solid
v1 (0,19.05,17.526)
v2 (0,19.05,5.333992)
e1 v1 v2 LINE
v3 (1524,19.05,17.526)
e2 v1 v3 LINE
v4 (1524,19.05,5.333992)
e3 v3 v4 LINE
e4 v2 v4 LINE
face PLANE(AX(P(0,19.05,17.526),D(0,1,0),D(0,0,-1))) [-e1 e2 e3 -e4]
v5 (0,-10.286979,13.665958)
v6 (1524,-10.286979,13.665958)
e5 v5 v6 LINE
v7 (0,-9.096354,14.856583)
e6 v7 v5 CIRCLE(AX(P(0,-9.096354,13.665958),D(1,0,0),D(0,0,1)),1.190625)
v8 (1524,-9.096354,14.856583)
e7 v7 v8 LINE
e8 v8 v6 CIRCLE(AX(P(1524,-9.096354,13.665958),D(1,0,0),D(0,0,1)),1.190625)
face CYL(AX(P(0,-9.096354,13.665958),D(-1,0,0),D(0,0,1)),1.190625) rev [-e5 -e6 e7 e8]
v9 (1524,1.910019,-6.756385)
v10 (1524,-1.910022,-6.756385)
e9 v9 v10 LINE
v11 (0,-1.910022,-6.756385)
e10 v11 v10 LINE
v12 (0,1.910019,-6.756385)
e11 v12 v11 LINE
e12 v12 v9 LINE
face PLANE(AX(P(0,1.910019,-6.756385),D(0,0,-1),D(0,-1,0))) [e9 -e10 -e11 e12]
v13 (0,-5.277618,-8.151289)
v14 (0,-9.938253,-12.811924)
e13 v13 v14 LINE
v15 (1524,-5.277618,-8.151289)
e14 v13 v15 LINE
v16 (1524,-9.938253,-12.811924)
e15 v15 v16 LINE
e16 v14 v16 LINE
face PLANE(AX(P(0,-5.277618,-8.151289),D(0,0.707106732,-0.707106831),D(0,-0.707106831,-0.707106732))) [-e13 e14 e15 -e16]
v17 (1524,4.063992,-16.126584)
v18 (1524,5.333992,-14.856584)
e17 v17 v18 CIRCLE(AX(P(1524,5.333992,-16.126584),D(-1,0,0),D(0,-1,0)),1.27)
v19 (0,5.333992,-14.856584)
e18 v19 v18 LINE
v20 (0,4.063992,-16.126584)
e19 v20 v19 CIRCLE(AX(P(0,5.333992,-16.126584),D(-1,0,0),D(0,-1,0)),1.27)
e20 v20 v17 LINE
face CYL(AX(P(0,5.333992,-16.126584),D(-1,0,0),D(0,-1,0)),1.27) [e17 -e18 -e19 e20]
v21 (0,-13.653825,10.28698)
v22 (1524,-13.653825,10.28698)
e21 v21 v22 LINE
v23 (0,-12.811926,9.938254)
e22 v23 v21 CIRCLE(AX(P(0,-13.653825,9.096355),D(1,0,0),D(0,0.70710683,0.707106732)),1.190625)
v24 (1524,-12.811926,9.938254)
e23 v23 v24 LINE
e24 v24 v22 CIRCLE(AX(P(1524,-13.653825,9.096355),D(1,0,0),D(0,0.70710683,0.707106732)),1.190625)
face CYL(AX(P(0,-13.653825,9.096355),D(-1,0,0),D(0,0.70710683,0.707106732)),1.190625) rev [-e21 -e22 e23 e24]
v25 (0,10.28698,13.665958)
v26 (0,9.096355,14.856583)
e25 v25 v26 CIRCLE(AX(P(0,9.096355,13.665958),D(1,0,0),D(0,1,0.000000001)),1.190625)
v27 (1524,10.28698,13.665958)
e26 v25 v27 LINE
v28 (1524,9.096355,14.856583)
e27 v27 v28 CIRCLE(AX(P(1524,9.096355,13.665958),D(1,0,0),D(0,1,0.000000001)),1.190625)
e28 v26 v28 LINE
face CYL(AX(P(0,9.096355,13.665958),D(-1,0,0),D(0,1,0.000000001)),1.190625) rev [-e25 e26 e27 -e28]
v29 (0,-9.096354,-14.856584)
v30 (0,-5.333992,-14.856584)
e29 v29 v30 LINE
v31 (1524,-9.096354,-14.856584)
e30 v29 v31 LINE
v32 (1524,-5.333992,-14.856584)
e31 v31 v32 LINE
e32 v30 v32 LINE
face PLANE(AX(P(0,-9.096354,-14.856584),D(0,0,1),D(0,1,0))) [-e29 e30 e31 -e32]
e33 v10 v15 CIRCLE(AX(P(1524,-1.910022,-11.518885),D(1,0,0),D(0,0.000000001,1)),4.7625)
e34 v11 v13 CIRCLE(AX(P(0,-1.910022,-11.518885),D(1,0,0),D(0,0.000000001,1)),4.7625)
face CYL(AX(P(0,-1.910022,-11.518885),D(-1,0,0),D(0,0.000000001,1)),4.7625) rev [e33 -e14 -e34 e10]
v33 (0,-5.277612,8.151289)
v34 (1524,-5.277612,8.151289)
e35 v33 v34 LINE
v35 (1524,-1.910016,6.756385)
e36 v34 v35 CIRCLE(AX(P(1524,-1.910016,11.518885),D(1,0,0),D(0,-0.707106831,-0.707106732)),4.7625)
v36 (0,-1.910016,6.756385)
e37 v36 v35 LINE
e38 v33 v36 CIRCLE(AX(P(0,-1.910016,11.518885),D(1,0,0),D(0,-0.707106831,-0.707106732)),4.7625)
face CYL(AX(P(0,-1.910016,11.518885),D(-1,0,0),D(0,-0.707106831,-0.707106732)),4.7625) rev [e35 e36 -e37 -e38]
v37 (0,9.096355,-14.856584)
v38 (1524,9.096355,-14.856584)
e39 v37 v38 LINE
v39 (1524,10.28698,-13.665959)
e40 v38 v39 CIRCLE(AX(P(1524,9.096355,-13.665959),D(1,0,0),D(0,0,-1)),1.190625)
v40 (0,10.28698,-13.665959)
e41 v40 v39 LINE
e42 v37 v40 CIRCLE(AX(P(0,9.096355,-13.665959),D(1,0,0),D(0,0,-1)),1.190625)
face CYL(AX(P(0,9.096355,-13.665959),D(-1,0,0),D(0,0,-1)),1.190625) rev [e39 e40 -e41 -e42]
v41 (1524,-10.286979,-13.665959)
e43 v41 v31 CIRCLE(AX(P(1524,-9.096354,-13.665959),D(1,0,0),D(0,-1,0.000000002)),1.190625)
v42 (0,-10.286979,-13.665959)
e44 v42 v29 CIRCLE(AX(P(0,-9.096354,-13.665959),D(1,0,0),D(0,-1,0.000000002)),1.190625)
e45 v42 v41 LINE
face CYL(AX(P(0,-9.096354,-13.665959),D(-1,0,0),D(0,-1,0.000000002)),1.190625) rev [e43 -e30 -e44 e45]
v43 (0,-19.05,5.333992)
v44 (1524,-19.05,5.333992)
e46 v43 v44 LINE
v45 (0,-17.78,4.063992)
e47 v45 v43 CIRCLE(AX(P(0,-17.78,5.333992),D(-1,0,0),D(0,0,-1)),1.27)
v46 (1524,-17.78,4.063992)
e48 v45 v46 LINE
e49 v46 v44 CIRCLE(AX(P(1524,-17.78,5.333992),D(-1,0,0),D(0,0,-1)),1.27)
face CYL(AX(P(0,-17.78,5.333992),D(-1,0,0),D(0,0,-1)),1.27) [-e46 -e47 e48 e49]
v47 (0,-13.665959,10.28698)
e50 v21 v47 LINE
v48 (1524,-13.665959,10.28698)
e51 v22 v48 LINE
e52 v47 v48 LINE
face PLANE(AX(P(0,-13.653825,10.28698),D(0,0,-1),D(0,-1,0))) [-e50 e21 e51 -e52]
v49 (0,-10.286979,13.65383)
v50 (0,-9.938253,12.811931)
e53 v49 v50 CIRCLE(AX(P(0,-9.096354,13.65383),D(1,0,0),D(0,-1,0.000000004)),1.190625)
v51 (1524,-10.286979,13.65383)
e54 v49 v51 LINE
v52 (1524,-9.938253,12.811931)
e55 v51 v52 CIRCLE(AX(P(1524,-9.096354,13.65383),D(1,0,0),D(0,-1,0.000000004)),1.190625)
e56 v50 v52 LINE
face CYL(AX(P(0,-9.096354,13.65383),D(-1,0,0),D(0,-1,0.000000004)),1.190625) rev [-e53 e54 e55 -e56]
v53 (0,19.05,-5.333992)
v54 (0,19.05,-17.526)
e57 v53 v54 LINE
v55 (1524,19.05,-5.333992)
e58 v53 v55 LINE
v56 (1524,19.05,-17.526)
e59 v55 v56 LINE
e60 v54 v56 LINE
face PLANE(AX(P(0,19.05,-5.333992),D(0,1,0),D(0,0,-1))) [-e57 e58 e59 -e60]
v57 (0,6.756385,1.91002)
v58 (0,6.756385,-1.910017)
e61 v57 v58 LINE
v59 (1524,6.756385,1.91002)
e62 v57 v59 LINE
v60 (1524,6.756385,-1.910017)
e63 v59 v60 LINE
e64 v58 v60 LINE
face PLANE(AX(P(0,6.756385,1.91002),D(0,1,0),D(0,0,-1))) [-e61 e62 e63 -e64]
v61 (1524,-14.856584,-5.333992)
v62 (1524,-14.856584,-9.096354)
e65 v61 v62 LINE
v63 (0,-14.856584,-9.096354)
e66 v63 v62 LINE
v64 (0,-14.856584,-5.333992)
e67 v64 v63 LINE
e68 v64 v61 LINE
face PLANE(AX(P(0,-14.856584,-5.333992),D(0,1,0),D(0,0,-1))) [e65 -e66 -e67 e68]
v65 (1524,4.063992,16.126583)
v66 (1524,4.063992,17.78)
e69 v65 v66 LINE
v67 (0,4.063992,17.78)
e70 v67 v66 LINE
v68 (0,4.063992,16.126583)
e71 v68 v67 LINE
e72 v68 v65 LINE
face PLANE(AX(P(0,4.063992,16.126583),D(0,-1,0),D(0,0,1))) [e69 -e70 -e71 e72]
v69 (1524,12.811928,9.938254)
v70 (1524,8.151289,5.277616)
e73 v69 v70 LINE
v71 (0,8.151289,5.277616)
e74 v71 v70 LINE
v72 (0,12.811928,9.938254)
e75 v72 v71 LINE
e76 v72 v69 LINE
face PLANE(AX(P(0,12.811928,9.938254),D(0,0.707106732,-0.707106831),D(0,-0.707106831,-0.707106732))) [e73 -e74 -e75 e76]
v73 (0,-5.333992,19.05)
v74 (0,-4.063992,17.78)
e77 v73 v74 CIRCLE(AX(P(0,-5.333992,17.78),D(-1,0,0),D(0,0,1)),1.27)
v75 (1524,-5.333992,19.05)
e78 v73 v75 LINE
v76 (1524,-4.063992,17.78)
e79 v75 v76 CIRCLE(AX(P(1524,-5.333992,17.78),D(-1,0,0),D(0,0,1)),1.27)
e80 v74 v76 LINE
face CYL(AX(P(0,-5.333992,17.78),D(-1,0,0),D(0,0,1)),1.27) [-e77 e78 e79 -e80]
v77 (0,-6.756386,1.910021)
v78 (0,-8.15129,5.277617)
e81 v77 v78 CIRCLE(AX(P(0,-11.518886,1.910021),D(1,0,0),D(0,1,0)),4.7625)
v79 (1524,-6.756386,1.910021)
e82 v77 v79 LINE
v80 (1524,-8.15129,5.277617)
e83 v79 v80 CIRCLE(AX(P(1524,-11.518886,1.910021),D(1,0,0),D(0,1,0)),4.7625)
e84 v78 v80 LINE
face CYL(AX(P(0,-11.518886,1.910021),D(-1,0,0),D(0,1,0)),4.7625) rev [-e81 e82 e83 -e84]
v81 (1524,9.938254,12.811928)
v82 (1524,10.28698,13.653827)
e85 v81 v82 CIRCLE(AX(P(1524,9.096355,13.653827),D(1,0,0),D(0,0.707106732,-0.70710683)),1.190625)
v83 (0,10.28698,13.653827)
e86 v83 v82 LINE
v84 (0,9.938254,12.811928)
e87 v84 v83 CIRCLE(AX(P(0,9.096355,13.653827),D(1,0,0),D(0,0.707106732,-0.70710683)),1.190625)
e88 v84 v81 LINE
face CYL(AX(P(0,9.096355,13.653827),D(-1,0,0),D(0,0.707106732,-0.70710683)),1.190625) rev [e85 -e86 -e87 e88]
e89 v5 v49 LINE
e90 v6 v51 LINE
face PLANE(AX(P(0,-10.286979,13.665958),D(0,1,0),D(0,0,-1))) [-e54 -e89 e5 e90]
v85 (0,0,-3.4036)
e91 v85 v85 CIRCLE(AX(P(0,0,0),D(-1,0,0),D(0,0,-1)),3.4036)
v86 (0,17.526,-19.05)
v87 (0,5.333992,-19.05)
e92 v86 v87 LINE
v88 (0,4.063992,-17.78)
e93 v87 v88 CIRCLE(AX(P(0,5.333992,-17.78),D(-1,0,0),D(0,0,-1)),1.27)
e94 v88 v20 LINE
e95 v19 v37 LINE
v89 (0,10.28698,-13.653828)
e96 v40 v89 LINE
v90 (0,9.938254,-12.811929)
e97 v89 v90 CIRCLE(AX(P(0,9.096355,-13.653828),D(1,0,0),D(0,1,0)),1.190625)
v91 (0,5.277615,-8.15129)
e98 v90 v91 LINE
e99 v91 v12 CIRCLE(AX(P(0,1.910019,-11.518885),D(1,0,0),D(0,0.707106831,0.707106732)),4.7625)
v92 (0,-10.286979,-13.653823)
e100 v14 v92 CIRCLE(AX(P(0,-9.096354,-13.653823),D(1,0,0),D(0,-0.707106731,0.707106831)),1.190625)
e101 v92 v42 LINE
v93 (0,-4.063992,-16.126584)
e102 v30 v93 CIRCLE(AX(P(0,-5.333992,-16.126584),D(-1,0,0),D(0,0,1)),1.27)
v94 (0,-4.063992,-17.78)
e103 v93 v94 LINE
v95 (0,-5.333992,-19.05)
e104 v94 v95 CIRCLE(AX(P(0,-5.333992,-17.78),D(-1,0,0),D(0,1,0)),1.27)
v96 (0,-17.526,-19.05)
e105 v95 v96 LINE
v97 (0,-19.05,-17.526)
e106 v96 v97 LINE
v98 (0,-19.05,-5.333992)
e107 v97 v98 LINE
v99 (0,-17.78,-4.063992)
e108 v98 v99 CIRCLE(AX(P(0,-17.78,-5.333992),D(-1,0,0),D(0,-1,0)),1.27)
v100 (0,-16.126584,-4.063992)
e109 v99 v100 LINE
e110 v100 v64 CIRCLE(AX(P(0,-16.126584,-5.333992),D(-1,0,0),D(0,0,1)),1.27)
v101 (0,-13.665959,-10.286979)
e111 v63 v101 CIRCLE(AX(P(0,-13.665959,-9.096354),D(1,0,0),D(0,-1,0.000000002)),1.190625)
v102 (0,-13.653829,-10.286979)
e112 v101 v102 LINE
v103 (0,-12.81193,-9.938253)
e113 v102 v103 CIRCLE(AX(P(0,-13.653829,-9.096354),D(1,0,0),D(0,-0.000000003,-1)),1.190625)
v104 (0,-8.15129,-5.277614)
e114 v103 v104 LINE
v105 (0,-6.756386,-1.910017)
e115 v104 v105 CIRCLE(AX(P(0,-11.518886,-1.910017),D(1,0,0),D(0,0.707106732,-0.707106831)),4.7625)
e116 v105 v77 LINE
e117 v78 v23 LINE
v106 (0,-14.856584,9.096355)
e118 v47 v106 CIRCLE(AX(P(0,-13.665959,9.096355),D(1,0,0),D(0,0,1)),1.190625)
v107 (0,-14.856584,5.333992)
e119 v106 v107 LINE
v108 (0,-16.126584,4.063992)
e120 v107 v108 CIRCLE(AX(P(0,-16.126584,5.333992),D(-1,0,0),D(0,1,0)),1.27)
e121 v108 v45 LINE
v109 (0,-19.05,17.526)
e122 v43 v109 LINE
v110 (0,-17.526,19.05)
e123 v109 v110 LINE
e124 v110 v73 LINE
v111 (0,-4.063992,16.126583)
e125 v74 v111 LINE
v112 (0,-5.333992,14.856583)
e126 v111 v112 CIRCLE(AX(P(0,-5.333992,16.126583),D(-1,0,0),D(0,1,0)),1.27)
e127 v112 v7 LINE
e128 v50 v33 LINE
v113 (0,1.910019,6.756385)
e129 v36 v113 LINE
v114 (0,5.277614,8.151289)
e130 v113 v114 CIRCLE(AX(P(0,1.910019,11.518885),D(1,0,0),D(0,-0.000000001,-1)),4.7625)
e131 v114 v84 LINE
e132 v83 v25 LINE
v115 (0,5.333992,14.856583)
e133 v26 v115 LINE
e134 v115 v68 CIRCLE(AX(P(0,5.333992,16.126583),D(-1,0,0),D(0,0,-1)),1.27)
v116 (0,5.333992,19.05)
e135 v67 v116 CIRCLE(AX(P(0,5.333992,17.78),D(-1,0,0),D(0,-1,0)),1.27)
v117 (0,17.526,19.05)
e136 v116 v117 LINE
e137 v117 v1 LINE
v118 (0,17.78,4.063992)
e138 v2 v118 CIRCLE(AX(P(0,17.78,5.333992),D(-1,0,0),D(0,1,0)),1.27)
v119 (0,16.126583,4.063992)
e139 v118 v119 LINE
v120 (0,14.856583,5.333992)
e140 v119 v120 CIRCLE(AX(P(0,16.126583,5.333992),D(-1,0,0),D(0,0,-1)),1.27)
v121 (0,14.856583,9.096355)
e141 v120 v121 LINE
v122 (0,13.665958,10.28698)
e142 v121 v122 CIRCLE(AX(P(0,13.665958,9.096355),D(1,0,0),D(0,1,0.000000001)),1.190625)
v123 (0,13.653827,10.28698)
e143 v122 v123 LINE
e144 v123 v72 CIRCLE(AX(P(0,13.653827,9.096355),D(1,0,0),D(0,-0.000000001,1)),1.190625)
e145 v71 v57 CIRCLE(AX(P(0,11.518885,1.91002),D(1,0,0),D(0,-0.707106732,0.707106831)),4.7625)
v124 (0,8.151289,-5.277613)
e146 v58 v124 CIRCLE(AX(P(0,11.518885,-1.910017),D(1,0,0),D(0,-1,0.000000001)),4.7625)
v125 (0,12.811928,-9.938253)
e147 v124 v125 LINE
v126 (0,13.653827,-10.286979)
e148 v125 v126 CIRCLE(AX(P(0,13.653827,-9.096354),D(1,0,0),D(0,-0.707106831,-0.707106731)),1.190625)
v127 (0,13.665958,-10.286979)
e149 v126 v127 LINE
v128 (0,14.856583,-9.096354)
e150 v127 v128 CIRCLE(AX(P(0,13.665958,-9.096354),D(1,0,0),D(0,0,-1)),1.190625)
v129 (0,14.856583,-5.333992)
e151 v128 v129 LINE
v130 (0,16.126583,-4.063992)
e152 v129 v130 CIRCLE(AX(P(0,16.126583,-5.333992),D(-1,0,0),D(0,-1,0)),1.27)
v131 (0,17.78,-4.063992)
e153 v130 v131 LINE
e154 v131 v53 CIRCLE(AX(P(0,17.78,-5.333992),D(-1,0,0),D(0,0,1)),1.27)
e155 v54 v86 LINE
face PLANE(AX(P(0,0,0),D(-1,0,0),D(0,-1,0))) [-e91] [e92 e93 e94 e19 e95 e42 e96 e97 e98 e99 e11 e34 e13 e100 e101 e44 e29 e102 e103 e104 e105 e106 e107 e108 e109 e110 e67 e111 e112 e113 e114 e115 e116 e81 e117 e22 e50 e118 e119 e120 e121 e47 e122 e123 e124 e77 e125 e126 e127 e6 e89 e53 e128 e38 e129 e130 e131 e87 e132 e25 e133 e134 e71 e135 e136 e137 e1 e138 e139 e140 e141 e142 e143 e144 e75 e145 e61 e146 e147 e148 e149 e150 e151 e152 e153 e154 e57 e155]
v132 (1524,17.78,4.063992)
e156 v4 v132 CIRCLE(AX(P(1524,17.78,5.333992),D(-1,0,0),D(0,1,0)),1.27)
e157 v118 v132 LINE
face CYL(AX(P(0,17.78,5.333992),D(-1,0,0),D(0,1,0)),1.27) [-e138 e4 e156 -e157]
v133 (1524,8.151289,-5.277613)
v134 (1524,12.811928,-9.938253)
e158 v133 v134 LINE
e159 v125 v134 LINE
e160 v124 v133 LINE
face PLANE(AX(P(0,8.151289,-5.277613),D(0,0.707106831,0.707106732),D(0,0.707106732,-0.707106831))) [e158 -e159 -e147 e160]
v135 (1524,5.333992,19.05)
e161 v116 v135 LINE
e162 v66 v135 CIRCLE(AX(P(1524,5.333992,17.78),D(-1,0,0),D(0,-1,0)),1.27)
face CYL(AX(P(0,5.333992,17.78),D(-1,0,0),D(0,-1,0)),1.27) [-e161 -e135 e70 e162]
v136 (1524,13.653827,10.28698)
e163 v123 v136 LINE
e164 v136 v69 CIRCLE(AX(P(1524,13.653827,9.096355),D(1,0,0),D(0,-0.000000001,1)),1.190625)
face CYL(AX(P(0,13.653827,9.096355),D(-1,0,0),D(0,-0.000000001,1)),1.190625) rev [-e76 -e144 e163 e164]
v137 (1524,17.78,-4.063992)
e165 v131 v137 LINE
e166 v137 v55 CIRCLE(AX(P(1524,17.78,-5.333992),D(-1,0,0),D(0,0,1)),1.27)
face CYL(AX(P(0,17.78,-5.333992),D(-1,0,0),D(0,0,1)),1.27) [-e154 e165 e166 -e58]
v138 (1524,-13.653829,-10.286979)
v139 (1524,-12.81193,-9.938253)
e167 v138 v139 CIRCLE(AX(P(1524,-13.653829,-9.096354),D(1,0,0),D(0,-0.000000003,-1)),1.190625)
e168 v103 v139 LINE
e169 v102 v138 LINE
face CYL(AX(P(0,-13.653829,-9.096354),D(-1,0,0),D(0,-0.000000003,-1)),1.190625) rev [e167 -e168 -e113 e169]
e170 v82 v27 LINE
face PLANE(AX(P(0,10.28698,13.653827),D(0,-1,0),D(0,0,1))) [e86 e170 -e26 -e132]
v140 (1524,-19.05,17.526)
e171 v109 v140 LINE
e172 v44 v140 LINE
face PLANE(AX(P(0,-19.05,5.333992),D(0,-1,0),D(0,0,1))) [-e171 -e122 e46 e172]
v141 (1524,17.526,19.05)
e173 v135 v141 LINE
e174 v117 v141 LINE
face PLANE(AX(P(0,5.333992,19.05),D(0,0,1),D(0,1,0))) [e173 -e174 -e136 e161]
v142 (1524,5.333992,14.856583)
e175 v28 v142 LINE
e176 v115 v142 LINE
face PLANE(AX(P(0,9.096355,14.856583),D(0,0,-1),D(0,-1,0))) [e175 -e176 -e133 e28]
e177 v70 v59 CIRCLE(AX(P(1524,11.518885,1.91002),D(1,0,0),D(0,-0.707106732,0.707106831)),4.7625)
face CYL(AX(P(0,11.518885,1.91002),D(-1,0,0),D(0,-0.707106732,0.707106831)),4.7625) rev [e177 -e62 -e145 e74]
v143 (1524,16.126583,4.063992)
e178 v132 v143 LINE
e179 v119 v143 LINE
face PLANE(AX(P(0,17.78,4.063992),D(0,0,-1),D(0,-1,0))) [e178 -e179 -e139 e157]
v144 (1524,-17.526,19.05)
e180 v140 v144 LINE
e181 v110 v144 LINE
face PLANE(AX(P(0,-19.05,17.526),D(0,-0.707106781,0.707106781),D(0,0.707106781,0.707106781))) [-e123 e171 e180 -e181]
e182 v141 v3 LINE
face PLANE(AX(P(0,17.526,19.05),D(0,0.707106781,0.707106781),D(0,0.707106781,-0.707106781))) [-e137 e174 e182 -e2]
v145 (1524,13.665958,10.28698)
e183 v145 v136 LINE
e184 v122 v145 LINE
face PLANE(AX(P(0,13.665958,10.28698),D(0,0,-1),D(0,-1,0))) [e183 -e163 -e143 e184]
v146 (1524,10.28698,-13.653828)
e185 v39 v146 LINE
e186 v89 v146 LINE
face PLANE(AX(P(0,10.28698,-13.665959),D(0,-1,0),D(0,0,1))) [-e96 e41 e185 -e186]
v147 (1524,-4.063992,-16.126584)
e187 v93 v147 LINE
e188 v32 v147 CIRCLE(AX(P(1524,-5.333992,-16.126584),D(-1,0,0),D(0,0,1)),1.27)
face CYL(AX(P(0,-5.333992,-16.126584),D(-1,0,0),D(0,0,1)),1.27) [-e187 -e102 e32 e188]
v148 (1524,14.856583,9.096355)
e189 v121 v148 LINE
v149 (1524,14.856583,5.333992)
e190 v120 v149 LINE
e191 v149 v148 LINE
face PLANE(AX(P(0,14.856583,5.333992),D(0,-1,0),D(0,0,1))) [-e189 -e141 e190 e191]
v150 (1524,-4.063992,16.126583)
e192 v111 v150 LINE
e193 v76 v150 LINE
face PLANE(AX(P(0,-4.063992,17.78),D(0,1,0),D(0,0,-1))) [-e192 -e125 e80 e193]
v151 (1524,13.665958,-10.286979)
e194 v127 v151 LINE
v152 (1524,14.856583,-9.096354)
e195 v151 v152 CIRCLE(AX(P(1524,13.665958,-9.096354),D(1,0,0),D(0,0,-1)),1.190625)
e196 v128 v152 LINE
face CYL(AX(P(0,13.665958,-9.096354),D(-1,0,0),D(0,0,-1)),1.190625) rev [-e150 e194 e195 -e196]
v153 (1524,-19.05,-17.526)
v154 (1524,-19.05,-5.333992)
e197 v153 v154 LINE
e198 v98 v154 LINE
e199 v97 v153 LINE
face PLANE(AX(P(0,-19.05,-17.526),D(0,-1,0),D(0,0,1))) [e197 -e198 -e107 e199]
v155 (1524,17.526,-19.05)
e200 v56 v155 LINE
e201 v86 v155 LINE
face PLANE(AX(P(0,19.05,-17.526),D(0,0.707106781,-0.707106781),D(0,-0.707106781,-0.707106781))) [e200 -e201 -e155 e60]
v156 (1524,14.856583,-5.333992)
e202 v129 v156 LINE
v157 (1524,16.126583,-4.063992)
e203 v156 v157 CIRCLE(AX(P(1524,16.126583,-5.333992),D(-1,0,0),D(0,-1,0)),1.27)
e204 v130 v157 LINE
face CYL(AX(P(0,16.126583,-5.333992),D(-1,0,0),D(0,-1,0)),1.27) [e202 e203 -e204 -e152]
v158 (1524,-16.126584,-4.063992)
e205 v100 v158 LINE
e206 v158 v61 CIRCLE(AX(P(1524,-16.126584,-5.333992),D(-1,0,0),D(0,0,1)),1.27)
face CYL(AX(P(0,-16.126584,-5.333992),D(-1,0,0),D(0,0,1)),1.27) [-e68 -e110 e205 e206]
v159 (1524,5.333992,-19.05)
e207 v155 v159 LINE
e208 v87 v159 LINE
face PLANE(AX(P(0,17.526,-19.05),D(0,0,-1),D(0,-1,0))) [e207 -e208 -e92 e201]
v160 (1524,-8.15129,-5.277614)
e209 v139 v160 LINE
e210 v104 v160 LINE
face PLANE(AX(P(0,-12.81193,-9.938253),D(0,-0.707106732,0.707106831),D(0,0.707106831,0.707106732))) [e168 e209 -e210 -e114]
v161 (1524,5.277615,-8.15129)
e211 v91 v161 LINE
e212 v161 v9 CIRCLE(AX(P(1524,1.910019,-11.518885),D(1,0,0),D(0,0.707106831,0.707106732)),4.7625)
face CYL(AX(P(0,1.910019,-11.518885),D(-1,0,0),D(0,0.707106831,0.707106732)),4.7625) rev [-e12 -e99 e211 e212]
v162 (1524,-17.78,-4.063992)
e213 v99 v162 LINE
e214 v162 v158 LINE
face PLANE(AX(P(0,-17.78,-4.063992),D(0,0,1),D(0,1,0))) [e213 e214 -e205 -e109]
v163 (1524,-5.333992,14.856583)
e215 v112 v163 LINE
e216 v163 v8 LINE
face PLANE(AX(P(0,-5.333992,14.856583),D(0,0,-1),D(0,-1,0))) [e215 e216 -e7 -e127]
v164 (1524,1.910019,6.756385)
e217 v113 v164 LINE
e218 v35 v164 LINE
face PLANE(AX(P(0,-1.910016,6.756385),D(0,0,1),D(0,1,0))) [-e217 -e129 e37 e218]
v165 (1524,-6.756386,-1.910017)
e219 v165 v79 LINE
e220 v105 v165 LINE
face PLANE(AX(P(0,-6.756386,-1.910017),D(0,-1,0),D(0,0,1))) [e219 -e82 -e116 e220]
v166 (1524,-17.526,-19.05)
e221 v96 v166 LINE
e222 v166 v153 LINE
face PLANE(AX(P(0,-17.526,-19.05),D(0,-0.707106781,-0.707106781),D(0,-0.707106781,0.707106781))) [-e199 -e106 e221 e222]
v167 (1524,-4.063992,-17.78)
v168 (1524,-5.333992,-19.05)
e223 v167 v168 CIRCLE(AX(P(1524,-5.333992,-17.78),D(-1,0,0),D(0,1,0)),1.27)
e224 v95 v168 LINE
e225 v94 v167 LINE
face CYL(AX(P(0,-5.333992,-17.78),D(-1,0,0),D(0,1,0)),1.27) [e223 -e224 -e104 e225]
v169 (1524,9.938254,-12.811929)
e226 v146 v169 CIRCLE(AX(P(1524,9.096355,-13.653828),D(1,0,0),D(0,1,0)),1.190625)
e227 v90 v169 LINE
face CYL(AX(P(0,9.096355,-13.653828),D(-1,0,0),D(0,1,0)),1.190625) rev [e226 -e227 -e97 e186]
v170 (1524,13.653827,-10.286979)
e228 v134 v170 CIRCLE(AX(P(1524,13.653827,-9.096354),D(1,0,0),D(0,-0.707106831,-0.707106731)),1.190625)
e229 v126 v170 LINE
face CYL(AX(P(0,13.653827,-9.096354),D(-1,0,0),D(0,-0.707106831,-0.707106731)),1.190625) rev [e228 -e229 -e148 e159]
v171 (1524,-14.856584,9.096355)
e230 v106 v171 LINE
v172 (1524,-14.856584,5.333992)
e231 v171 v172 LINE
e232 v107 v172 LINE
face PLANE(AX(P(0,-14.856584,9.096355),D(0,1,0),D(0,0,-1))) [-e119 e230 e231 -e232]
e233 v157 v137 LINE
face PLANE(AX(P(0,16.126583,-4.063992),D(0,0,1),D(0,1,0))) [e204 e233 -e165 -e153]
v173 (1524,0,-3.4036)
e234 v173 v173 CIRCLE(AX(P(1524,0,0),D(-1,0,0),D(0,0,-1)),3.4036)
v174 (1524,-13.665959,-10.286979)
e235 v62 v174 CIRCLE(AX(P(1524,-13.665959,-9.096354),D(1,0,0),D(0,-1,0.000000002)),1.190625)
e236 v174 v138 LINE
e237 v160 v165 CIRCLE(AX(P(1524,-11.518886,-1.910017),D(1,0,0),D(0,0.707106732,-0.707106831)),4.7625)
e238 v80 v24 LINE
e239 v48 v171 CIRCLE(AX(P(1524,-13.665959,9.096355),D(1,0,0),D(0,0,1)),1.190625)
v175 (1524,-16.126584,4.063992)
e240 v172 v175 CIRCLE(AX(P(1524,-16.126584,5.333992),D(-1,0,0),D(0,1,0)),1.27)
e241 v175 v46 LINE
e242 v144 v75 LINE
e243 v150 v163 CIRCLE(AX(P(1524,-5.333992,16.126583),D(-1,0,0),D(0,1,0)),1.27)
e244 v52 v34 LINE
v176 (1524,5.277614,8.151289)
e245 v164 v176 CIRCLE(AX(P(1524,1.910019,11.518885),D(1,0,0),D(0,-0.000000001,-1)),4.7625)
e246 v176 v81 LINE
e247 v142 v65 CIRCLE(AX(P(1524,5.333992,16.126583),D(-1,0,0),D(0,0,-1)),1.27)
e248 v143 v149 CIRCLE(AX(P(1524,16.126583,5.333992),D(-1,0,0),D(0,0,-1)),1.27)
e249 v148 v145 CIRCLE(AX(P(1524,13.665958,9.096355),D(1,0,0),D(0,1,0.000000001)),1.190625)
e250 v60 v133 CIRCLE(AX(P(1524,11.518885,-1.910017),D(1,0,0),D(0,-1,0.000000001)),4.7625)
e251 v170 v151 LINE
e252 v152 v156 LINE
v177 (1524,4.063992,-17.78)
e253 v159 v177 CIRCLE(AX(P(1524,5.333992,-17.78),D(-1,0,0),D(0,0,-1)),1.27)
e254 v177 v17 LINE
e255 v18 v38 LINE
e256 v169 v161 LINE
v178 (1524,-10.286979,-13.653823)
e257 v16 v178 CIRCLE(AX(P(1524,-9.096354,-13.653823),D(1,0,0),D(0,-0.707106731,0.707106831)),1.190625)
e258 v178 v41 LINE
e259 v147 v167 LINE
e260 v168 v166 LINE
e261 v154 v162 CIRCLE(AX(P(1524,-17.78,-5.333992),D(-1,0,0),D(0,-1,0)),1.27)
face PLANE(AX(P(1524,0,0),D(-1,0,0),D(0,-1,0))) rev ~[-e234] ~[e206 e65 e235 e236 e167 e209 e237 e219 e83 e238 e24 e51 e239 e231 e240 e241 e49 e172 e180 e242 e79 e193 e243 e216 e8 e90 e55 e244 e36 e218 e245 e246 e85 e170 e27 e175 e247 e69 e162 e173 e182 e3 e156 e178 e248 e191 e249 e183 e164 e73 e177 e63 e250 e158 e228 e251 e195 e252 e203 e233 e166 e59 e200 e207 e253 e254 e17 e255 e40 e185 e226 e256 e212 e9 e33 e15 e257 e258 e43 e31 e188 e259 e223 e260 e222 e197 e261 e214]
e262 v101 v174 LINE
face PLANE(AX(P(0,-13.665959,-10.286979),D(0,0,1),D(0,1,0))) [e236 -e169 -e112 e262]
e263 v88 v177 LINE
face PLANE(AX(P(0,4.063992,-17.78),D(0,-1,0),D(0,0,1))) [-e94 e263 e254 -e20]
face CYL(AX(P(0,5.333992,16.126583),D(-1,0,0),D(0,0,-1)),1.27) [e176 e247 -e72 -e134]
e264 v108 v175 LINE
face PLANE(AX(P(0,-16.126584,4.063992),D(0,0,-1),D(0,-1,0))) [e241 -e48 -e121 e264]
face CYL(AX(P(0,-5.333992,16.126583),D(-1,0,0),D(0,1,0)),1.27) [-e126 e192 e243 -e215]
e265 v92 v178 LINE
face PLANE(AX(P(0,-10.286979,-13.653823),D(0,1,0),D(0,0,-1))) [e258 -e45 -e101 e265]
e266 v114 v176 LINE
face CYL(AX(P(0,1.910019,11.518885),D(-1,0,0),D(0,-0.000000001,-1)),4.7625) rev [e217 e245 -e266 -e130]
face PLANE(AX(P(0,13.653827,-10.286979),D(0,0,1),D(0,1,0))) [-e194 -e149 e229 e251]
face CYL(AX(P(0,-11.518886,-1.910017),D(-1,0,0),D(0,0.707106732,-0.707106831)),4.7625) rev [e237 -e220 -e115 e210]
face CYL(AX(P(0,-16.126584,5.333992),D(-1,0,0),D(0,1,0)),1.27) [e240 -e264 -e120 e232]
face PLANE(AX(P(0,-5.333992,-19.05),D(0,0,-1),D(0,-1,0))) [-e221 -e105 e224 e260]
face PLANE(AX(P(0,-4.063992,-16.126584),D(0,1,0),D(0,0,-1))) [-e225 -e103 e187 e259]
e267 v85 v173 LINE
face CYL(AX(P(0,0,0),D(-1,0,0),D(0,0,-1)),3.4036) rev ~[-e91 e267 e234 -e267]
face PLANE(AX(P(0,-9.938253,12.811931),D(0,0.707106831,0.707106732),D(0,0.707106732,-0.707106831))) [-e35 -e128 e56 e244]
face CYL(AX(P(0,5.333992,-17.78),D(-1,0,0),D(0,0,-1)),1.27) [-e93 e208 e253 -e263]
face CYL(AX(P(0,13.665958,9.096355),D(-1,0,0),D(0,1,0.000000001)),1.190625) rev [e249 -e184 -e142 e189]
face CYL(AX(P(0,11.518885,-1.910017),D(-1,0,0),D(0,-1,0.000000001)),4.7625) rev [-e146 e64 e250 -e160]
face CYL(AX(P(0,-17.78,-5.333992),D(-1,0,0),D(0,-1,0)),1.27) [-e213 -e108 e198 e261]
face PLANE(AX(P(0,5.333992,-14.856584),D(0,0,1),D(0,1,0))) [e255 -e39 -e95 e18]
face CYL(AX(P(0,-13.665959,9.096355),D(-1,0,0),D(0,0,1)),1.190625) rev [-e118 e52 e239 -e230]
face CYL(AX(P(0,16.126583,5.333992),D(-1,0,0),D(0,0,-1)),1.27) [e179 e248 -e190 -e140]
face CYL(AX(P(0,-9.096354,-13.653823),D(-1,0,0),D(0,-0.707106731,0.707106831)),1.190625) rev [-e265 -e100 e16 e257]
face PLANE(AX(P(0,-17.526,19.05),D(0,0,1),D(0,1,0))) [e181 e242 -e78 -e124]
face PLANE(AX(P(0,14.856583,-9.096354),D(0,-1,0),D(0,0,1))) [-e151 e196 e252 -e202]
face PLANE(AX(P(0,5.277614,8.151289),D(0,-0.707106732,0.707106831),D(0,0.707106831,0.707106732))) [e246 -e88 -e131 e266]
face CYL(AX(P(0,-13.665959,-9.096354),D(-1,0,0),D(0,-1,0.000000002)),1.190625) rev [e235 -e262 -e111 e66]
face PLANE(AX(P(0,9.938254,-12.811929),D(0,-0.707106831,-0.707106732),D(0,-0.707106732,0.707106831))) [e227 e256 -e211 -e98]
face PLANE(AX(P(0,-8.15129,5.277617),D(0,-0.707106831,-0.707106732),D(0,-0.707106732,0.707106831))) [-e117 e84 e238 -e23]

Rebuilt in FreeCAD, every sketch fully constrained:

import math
import FreeCAD as App
import Part
import Sketcher
Q = App.Units.Quantity

doc = App.newDocument("Part")
params = doc.addObject("Spreadsheet::Sheet", "Params")
for row, (alias, value) in enumerate([
    ("sketch1_radius", "0.05 in"),
    ("sketch1_diameter", "0.268 in"),
    ("sketch1_radius2", "0.046875 in"),
    ("sketch1_radius3", "0.1875 in"),
    ("pad1_length", "60 in"),
], start=1):
    params.set(f"A{row}", alias)
    params.set(f"B{row}", "=" + value)
    params.setAlias(f"B{row}", alias)

body = doc.addObject("PartDesign::Body", "Body")

sketch1 = body.newObject("Sketcher::SketchObject", "Sketch")
sketch1.AttachmentSupport = (doc.getObject("YZ_Plane"), [""])
sketch1.MapMode = "FlatFace"
sketch1.addGeometry(Part.LineSegment(App.Vector(-19.05, 5.333992, 0), App.Vector(-19.05, 17.526, 0)), False)
sketch1.addGeometry(Part.LineSegment(App.Vector(-19.05, 17.526, 0), App.Vector(-17.526, 19.05, 0)), False)
sketch1.addGeometry(Part.LineSegment(App.Vector(-17.526, 19.05, 0), App.Vector(-5.333992, 19.05, 0)), False)
sketch1.addGeometry(Part.ArcOfCircle(Part.Circle(App.Vector(-5.333992, 17.78, 0), App.Vector(0, 0, 1), 1.27), math.radians(0), math.radians(90)), False)
sketch1.addGeometry(Part.LineSegment(App.Vector(-4.063992, 17.78, 0), App.Vector(-4.063992, 16.126583, 0)), False)
sketch1.addGeometry(Part.ArcOfCircle(Part.Circle(App.Vector(-5.333992, 16.126583, 0), App.Vector(0, 0, 1), 1.27), math.radians(-90), math.radians(0)), False)
sketch1.addGeometry(Part.LineSegment(App.Vector(-5.333992, 14.856583, 0), App.Vector(-9.096354, 14.856583, 0)), False)
sketch1.addGeometry(Part.ArcOfCircle(Part.Circle(App.Vector(-9.096354, 13.665958, 0), App.Vector(0, 0, 1), 1.190625), math.radians(90), math.radians(180)), False)
sketch1.addGeometry(Part.LineSegment(App.Vector(-10.286979, 13.665958, 0), App.Vector(-10.286979, 13.65383, 0)), False)
sketch1.addGeometry(Part.ArcOfCircle(Part.Circle(App.Vector(-9.096354, 13.65383, 0), App.Vector(0, 0, 1), 1.190625), math.radians(180), math.radians(224.999996)), False)
sketch1.addGeometry(Part.LineSegment(App.Vector(-9.938253, 12.811931, 0), App.Vector(-5.277612, 8.151289, 0)), False)
sketch1.addGeometry(Part.ArcOfCircle(Part.Circle(App.Vector(-1.910016, 11.518885, 0), App.Vector(0, 0, 1), 4.7625), math.radians(-135.000004), math.radians(-90)), False)
sketch1.addGeometry(Part.LineSegment(App.Vector(-1.910016, 6.756385, 0), App.Vector(1.910019, 6.756385, 0)), False)
sketch1.addGeometry(Part.ArcOfCircle(Part.Circle(App.Vector(1.910019, 11.518885, 0), App.Vector(0, 0, 1), 4.7625), math.radians(-90), math.radians(-45.000004)), False)
sketch1.addGeometry(Part.LineSegment(App.Vector(5.277614, 8.151289, 0), App.Vector(9.938254, 12.811928, 0)), False)
sketch1.addGeometry(Part.ArcOfCircle(Part.Circle(App.Vector(9.096355, 13.653827, 0), App.Vector(0, 0, 1), 1.190625), math.radians(-45.000004), math.radians(0)), False)
sketch1.addGeometry(Part.LineSegment(App.Vector(10.28698, 13.653827, 0), App.Vector(10.28698, 13.665958, 0)), False)
sketch1.addGeometry(Part.ArcOfCircle(Part.Circle(App.Vector(9.096355, 13.665958, 0), App.Vector(0, 0, 1), 1.190625), math.radians(0), math.radians(90)), False)
sketch1.addGeometry(Part.LineSegment(App.Vector(9.096355, 14.856583, 0), App.Vector(5.333992, 14.856583, 0)), False)
sketch1.addGeometry(Part.ArcOfCircle(Part.Circle(App.Vector(5.333992, 16.126583, 0), App.Vector(0, 0, 1), 1.27), math.radians(180), math.radians(270)), False)
sketch1.addGeometry(Part.LineSegment(App.Vector(4.063992, 16.126583, 0), App.Vector(4.063992, 17.78, 0)), False)
sketch1.addGeometry(Part.ArcOfCircle(Part.Circle(App.Vector(5.333992, 17.78, 0), App.Vector(0, 0, 1), 1.27), math.radians(90), math.radians(180)), False)
sketch1.addGeometry(Part.LineSegment(App.Vector(5.333992, 19.05, 0), App.Vector(17.526, 19.05, 0)), False)
sketch1.addGeometry(Part.LineSegment(App.Vector(17.526, 19.05, 0), App.Vector(19.05, 17.526, 0)), False)
sketch1.addGeometry(Part.LineSegment(App.Vector(19.05, 17.526, 0), App.Vector(19.05, 5.333992, 0)), False)
sketch1.addGeometry(Part.ArcOfCircle(Part.Circle(App.Vector(17.78, 5.333992, 0), App.Vector(0, 0, 1), 1.27), math.radians(-90), math.radians(0)), False)
sketch1.addGeometry(Part.LineSegment(App.Vector(17.78, 4.063992, 0), App.Vector(16.126583, 4.063992, 0)), False)
sketch1.addGeometry(Part.ArcOfCircle(Part.Circle(App.Vector(16.126583, 5.333992, 0), App.Vector(0, 0, 1), 1.27), math.radians(180), math.radians(270)), False)
sketch1.addGeometry(Part.LineSegment(App.Vector(14.856583, 5.333992, 0), App.Vector(14.856583, 9.096355, 0)), False)
sketch1.addGeometry(Part.ArcOfCircle(Part.Circle(App.Vector(13.665958, 9.096355, 0), App.Vector(0, 0, 1), 1.190625), math.radians(0), math.radians(90)), False)
sketch1.addGeometry(Part.LineSegment(App.Vector(13.665958, 10.28698, 0), App.Vector(13.653827, 10.28698, 0)), False)
sketch1.addGeometry(Part.ArcOfCircle(Part.Circle(App.Vector(13.653827, 9.096355, 0), App.Vector(0, 0, 1), 1.190625), math.radians(90), math.radians(134.999996)), False)
sketch1.addGeometry(Part.LineSegment(App.Vector(12.811928, 9.938254, 0), App.Vector(8.151289, 5.277616, 0)), False)
sketch1.addGeometry(Part.ArcOfCircle(Part.Circle(App.Vector(11.518885, 1.91002, 0), App.Vector(0, 0, 1), 4.7625), math.radians(134.999996), math.radians(180)), False)
sketch1.addGeometry(Part.LineSegment(App.Vector(6.756385, 1.91002, 0), App.Vector(6.756385, -1.910017, 0)), False)
sketch1.addGeometry(Part.ArcOfCircle(Part.Circle(App.Vector(11.518885, -1.910017, 0), App.Vector(0, 0, 1), 4.7625), math.radians(180), math.radians(224.999996)), False)
sketch1.addGeometry(Part.LineSegment(App.Vector(8.151289, -5.277613, 0), App.Vector(12.811928, -9.938253, 0)), False)
sketch1.addGeometry(Part.ArcOfCircle(Part.Circle(App.Vector(13.653827, -9.096354, 0), App.Vector(0, 0, 1), 1.190625), math.radians(-135.000004), math.radians(-90)), False)
sketch1.addGeometry(Part.LineSegment(App.Vector(13.653827, -10.286979, 0), App.Vector(13.665958, -10.286979, 0)), False)
sketch1.addGeometry(Part.ArcOfCircle(Part.Circle(App.Vector(13.665958, -9.096354, 0), App.Vector(0, 0, 1), 1.190625), math.radians(-90), math.radians(0)), False)
sketch1.addGeometry(Part.LineSegment(App.Vector(14.856583, -9.096354, 0), App.Vector(14.856583, -5.333992, 0)), False)
sketch1.addGeometry(Part.ArcOfCircle(Part.Circle(App.Vector(16.126583, -5.333992, 0), App.Vector(0, 0, 1), 1.27), math.radians(90), math.radians(180)), False)
sketch1.addGeometry(Part.LineSegment(App.Vector(16.126583, -4.063992, 0), App.Vector(17.78, -4.063992, 0)), False)
sketch1.addGeometry(Part.ArcOfCircle(Part.Circle(App.Vector(17.78, -5.333992, 0), App.Vector(0, 0, 1), 1.27), math.radians(0), math.radians(90)), False)
sketch1.addGeometry(Part.LineSegment(App.Vector(19.05, -5.333992, 0), App.Vector(19.05, -17.526, 0)), False)
sketch1.addGeometry(Part.LineSegment(App.Vector(19.05, -17.526, 0), App.Vector(17.526, -19.05, 0)), False)
sketch1.addGeometry(Part.LineSegment(App.Vector(17.526, -19.05, 0), App.Vector(5.333992, -19.05, 0)), False)
sketch1.addGeometry(Part.ArcOfCircle(Part.Circle(App.Vector(5.333992, -17.78, 0), App.Vector(0, 0, 1), 1.27), math.radians(180), math.radians(270)), False)
sketch1.addGeometry(Part.LineSegment(App.Vector(4.063992, -17.78, 0), App.Vector(4.063992, -16.126584, 0)), False)
sketch1.addGeometry(Part.ArcOfCircle(Part.Circle(App.Vector(5.333992, -16.126584, 0), App.Vector(0, 0, 1), 1.27), math.radians(90), math.radians(180)), False)
sketch1.addGeometry(Part.LineSegment(App.Vector(5.333992, -14.856584, 0), App.Vector(9.096355, -14.856584, 0)), False)
sketch1.addGeometry(Part.ArcOfCircle(Part.Circle(App.Vector(9.096355, -13.665959, 0), App.Vector(0, 0, 1), 1.190625), math.radians(-90), math.radians(0)), False)
sketch1.addGeometry(Part.LineSegment(App.Vector(10.28698, -13.665959, 0), App.Vector(10.28698, -13.653828, 0)), False)
sketch1.addGeometry(Part.ArcOfCircle(Part.Circle(App.Vector(9.096355, -13.653828, 0), App.Vector(0, 0, 1), 1.190625), math.radians(0), math.radians(44.999996)), False)
sketch1.addGeometry(Part.LineSegment(App.Vector(9.938254, -12.811929, 0), App.Vector(5.277615, -8.15129, 0)), False)
sketch1.addGeometry(Part.ArcOfCircle(Part.Circle(App.Vector(1.910019, -11.518885, 0), App.Vector(0, 0, 1), 4.7625), math.radians(44.999996), math.radians(90)), False)
sketch1.addGeometry(Part.LineSegment(App.Vector(1.910019, -6.756385, 0), App.Vector(-1.910022, -6.756385, 0)), False)
sketch1.addGeometry(Part.ArcOfCircle(Part.Circle(App.Vector(-1.910022, -11.518885, 0), App.Vector(0, 0, 1), 4.7625), math.radians(90), math.radians(134.999996)), False)
sketch1.addGeometry(Part.LineSegment(App.Vector(-5.277618, -8.151289, 0), App.Vector(-9.938253, -12.811924, 0)), False)
sketch1.addGeometry(Part.ArcOfCircle(Part.Circle(App.Vector(-9.096354, -13.653823, 0), App.Vector(0, 0, 1), 1.190625), math.radians(134.999996), math.radians(180)), False)
sketch1.addGeometry(Part.LineSegment(App.Vector(-10.286979, -13.653823, 0), App.Vector(-10.286979, -13.665959, 0)), False)
sketch1.addGeometry(Part.ArcOfCircle(Part.Circle(App.Vector(-9.096354, -13.665959, 0), App.Vector(0, 0, 1), 1.190625), math.radians(180), math.radians(270)), False)
sketch1.addGeometry(Part.LineSegment(App.Vector(-9.096354, -14.856584, 0), App.Vector(-5.333992, -14.856584, 0)), False)
sketch1.addGeometry(Part.ArcOfCircle(Part.Circle(App.Vector(-5.333992, -16.126584, 0), App.Vector(0, 0, 1), 1.27), math.radians(0), math.radians(90)), False)
sketch1.addGeometry(Part.LineSegment(App.Vector(-4.063992, -16.126584, 0), App.Vector(-4.063992, -17.78, 0)), False)
sketch1.addGeometry(Part.ArcOfCircle(Part.Circle(App.Vector(-5.333992, -17.78, 0), App.Vector(0, 0, 1), 1.27), math.radians(-90), math.radians(0)), False)
sketch1.addGeometry(Part.LineSegment(App.Vector(-5.333992, -19.05, 0), App.Vector(-17.526, -19.05, 0)), False)
sketch1.addGeometry(Part.LineSegment(App.Vector(-17.526, -19.05, 0), App.Vector(-19.05, -17.526, 0)), False)
sketch1.addGeometry(Part.LineSegment(App.Vector(-19.05, -17.526, 0), App.Vector(-19.05, -5.333992, 0)), False)
sketch1.addGeometry(Part.ArcOfCircle(Part.Circle(App.Vector(-17.78, -5.333992, 0), App.Vector(0, 0, 1), 1.27), math.radians(90), math.radians(180)), False)
sketch1.addGeometry(Part.LineSegment(App.Vector(-17.78, -4.063992, 0), App.Vector(-16.126584, -4.063992, 0)), False)
sketch1.addGeometry(Part.ArcOfCircle(Part.Circle(App.Vector(-16.126584, -5.333992, 0), App.Vector(0, 0, 1), 1.27), math.radians(0), math.radians(90)), False)
sketch1.addGeometry(Part.LineSegment(App.Vector(-14.856584, -5.333992, 0), App.Vector(-14.856584, -9.096354, 0)), False)
sketch1.addGeometry(Part.ArcOfCircle(Part.Circle(App.Vector(-13.665959, -9.096354, 0), App.Vector(0, 0, 1), 1.190625), math.radians(180), math.radians(270)), False)
sketch1.addGeometry(Part.LineSegment(App.Vector(-13.665959, -10.286979, 0), App.Vector(-13.653829, -10.286979, 0)), False)
sketch1.addGeometry(Part.ArcOfCircle(Part.Circle(App.Vector(-13.653829, -9.096354, 0), App.Vector(0, 0, 1), 1.190625), math.radians(-90), math.radians(-45.000004)), False)
sketch1.addGeometry(Part.LineSegment(App.Vector(-12.81193, -9.938253, 0), App.Vector(-8.15129, -5.277614, 0)), False)
sketch1.addGeometry(Part.ArcOfCircle(Part.Circle(App.Vector(-11.518886, -1.910017, 0), App.Vector(0, 0, 1), 4.7625), math.radians(-45.000004), math.radians(0)), False)
sketch1.addGeometry(Part.LineSegment(App.Vector(-6.756386, -1.910017, 0), App.Vector(-6.756386, 1.910021, 0)), False)
sketch1.addGeometry(Part.ArcOfCircle(Part.Circle(App.Vector(-11.518886, 1.910021, 0), App.Vector(0, 0, 1), 4.7625), math.radians(0), math.radians(44.999996)), False)
sketch1.addGeometry(Part.LineSegment(App.Vector(-8.15129, 5.277617, 0), App.Vector(-12.811926, 9.938254, 0)), False)
sketch1.addGeometry(Part.ArcOfCircle(Part.Circle(App.Vector(-13.653825, 9.096355, 0), App.Vector(0, 0, 1), 1.190625), math.radians(44.999996), math.radians(90)), False)
sketch1.addGeometry(Part.LineSegment(App.Vector(-13.653825, 10.28698, 0), App.Vector(-13.665959, 10.28698, 0)), False)
sketch1.addGeometry(Part.ArcOfCircle(Part.Circle(App.Vector(-13.665959, 9.096355, 0), App.Vector(0, 0, 1), 1.190625), math.radians(90), math.radians(180)), False)
sketch1.addGeometry(Part.LineSegment(App.Vector(-14.856584, 9.096355, 0), App.Vector(-14.856584, 5.333992, 0)), False)
sketch1.addGeometry(Part.ArcOfCircle(Part.Circle(App.Vector(-16.126584, 5.333992, 0), App.Vector(0, 0, 1), 1.27), math.radians(-90), math.radians(0)), False)
sketch1.addGeometry(Part.LineSegment(App.Vector(-16.126584, 4.063992, 0), App.Vector(-17.78, 4.063992, 0)), False)
sketch1.addGeometry(Part.ArcOfCircle(Part.Circle(App.Vector(-17.78, 5.333992, 0), App.Vector(0, 0, 1), 1.27), math.radians(180), math.radians(270)), False)
sketch1.addGeometry(Part.Circle(App.Vector(0, 0, 0), App.Vector(0, 0, 1), 3.4036), False)
sketch1.addConstraint(Sketcher.Constraint("Coincident", 0, 2, 1, 1))
sketch1.addConstraint(Sketcher.Constraint("Coincident", 1, 2, 2, 1))
sketch1.addConstraint(Sketcher.Constraint("Tangent", 2, 2, 3, 2))
sketch1.addConstraint(Sketcher.Constraint("Tangent", 3, 1, 4, 1))
sketch1.addConstraint(Sketcher.Constraint("Tangent", 4, 2, 5, 2))
sketch1.addConstraint(Sketcher.Constraint("Tangent", 5, 1, 6, 1))
sketch1.addConstraint(Sketcher.Constraint("Tangent", 6, 2, 7, 1))
sketch1.addConstraint(Sketcher.Constraint("Tangent", 7, 2, 8, 1))
sketch1.addConstraint(Sketcher.Constraint("Tangent", 8, 2, 9, 1))
sketch1.addConstraint(Sketcher.Constraint("Tangent", 9, 2, 10, 1))
sketch1.addConstraint(Sketcher.Constraint("Tangent", 10, 2, 11, 1))
sketch1.addConstraint(Sketcher.Constraint("Tangent", 11, 2, 12, 1))
sketch1.addConstraint(Sketcher.Constraint("Tangent", 12, 2, 13, 1))
sketch1.addConstraint(Sketcher.Constraint("Tangent", 13, 2, 14, 1))
sketch1.addConstraint(Sketcher.Constraint("Tangent", 14, 2, 15, 1))
sketch1.addConstraint(Sketcher.Constraint("Tangent", 15, 2, 16, 1))
sketch1.addConstraint(Sketcher.Constraint("Tangent", 16, 2, 17, 1))
sketch1.addConstraint(Sketcher.Constraint("Tangent", 17, 2, 18, 1))
sketch1.addConstraint(Sketcher.Constraint("Tangent", 18, 2, 19, 2))
sketch1.addConstraint(Sketcher.Constraint("Tangent", 19, 1, 20, 1))
sketch1.addConstraint(Sketcher.Constraint("Tangent", 20, 2, 21, 2))
sketch1.addConstraint(Sketcher.Constraint("Tangent", 21, 1, 22, 1))
sketch1.addConstraint(Sketcher.Constraint("Coincident", 22, 2, 23, 1))
sketch1.addConstraint(Sketcher.Constraint("Coincident", 23, 2, 24, 1))
sketch1.addConstraint(Sketcher.Constraint("Tangent", 24, 2, 25, 2))
sketch1.addConstraint(Sketcher.Constraint("Tangent", 25, 1, 26, 1))
sketch1.addConstraint(Sketcher.Constraint("Tangent", 26, 2, 27, 2))
sketch1.addConstraint(Sketcher.Constraint("Tangent", 27, 1, 28, 1))
sketch1.addConstraint(Sketcher.Constraint("Tangent", 28, 2, 29, 1))
sketch1.addConstraint(Sketcher.Constraint("Tangent", 29, 2, 30, 1))
sketch1.addConstraint(Sketcher.Constraint("Tangent", 30, 2, 31, 1))
sketch1.addConstraint(Sketcher.Constraint("Tangent", 31, 2, 32, 1))
sketch1.addConstraint(Sketcher.Constraint("Tangent", 32, 2, 33, 1))
sketch1.addConstraint(Sketcher.Constraint("Tangent", 33, 2, 34, 1))
sketch1.addConstraint(Sketcher.Constraint("Tangent", 34, 2, 35, 1))
sketch1.addConstraint(Sketcher.Constraint("Tangent", 35, 2, 36, 1))
sketch1.addConstraint(Sketcher.Constraint("Tangent", 36, 2, 37, 1))
sketch1.addConstraint(Sketcher.Constraint("Tangent", 37, 2, 38, 1))
sketch1.addConstraint(Sketcher.Constraint("Tangent", 38, 2, 39, 1))
sketch1.addConstraint(Sketcher.Constraint("Tangent", 39, 2, 40, 1))
sketch1.addConstraint(Sketcher.Constraint("Tangent", 40, 2, 41, 2))
sketch1.addConstraint(Sketcher.Constraint("Tangent", 41, 1, 42, 1))
sketch1.addConstraint(Sketcher.Constraint("Tangent", 42, 2, 43, 2))
sketch1.addConstraint(Sketcher.Constraint("Tangent", 43, 1, 44, 1))
sketch1.addConstraint(Sketcher.Constraint("Coincident", 44, 2, 45, 1))
sketch1.addConstraint(Sketcher.Constraint("Coincident", 45, 2, 46, 1))
sketch1.addConstraint(Sketcher.Constraint("Tangent", 46, 2, 47, 2))
sketch1.addConstraint(Sketcher.Constraint("Tangent", 47, 1, 48, 1))
sketch1.addConstraint(Sketcher.Constraint("Tangent", 48, 2, 49, 2))
sketch1.addConstraint(Sketcher.Constraint("Tangent", 49, 1, 50, 1))
sketch1.addConstraint(Sketcher.Constraint("Tangent", 50, 2, 51, 1))
sketch1.addConstraint(Sketcher.Constraint("Tangent", 51, 2, 52, 1))
sketch1.addConstraint(Sketcher.Constraint("Tangent", 52, 2, 53, 1))
sketch1.addConstraint(Sketcher.Constraint("Tangent", 53, 2, 54, 1))
sketch1.addConstraint(Sketcher.Constraint("Tangent", 54, 2, 55, 1))
sketch1.addConstraint(Sketcher.Constraint("Tangent", 55, 2, 56, 1))
sketch1.addConstraint(Sketcher.Constraint("Tangent", 56, 2, 57, 1))
sketch1.addConstraint(Sketcher.Constraint("Tangent", 57, 2, 58, 1))
sketch1.addConstraint(Sketcher.Constraint("Tangent", 58, 2, 59, 1))
sketch1.addConstraint(Sketcher.Constraint("Tangent", 59, 2, 60, 1))
sketch1.addConstraint(Sketcher.Constraint("Tangent", 60, 2, 61, 1))
sketch1.addConstraint(Sketcher.Constraint("Tangent", 61, 2, 62, 1))
sketch1.addConstraint(Sketcher.Constraint("Tangent", 62, 2, 63, 2))
sketch1.addConstraint(Sketcher.Constraint("Tangent", 63, 1, 64, 1))
sketch1.addConstraint(Sketcher.Constraint("Tangent", 64, 2, 65, 2))
sketch1.addConstraint(Sketcher.Constraint("Tangent", 65, 1, 66, 1))
sketch1.addConstraint(Sketcher.Constraint("Coincident", 66, 2, 67, 1))
sketch1.addConstraint(Sketcher.Constraint("Coincident", 67, 2, 68, 1))
sketch1.addConstraint(Sketcher.Constraint("Tangent", 68, 2, 69, 2))
sketch1.addConstraint(Sketcher.Constraint("Tangent", 69, 1, 70, 1))
sketch1.addConstraint(Sketcher.Constraint("Tangent", 70, 2, 71, 2))
sketch1.addConstraint(Sketcher.Constraint("Tangent", 71, 1, 72, 1))
sketch1.addConstraint(Sketcher.Constraint("Tangent", 72, 2, 73, 1))
sketch1.addConstraint(Sketcher.Constraint("Tangent", 73, 2, 74, 1))
sketch1.addConstraint(Sketcher.Constraint("Tangent", 74, 2, 75, 1))
sketch1.addConstraint(Sketcher.Constraint("Tangent", 75, 2, 76, 1))
sketch1.addConstraint(Sketcher.Constraint("Tangent", 76, 2, 77, 1))
sketch1.addConstraint(Sketcher.Constraint("Tangent", 77, 2, 78, 1))
sketch1.addConstraint(Sketcher.Constraint("Tangent", 78, 2, 79, 1))
sketch1.addConstraint(Sketcher.Constraint("Tangent", 79, 2, 80, 1))
sketch1.addConstraint(Sketcher.Constraint("Tangent", 80, 2, 81, 1))
sketch1.addConstraint(Sketcher.Constraint("Tangent", 81, 2, 82, 1))
sketch1.addConstraint(Sketcher.Constraint("Tangent", 82, 2, 83, 1))
sketch1.addConstraint(Sketcher.Constraint("Tangent", 83, 2, 84, 1))
sketch1.addConstraint(Sketcher.Constraint("Tangent", 84, 2, 85, 2))
sketch1.addConstraint(Sketcher.Constraint("Tangent", 85, 1, 86, 1))
sketch1.addConstraint(Sketcher.Constraint("Tangent", 86, 2, 87, 2))
sketch1.addConstraint(Sketcher.Constraint("Tangent", 87, 1, 0, 1))
sketch1.addConstraint(Sketcher.Constraint("Vertical", 0))
sketch1.addConstraint(Sketcher.Constraint("Horizontal", 2))
sketch1.addConstraint(Sketcher.Constraint("Vertical", 4))
sketch1.addConstraint(Sketcher.Constraint("Horizontal", 6))
sketch1.addConstraint(Sketcher.Constraint("Vertical", 8))
sketch1.addConstraint(Sketcher.Constraint("Horizontal", 12))
sketch1.addConstraint(Sketcher.Constraint("Vertical", 16))
sketch1.addConstraint(Sketcher.Constraint("Horizontal", 18))
sketch1.addConstraint(Sketcher.Constraint("Vertical", 20))
sketch1.addConstraint(Sketcher.Constraint("Horizontal", 22))
sketch1.addConstraint(Sketcher.Constraint("Vertical", 24))
sketch1.addConstraint(Sketcher.Constraint("Horizontal", 26))
sketch1.addConstraint(Sketcher.Constraint("Vertical", 28))
sketch1.addConstraint(Sketcher.Constraint("Horizontal", 30))
sketch1.addConstraint(Sketcher.Constraint("Vertical", 34))
sketch1.addConstraint(Sketcher.Constraint("Horizontal", 38))
sketch1.addConstraint(Sketcher.Constraint("Vertical", 40))
sketch1.addConstraint(Sketcher.Constraint("Horizontal", 42))
sketch1.addConstraint(Sketcher.Constraint("Vertical", 44))
sketch1.addConstraint(Sketcher.Constraint("Horizontal", 46))
sketch1.addConstraint(Sketcher.Constraint("Vertical", 48))
sketch1.addConstraint(Sketcher.Constraint("Horizontal", 50))
sketch1.addConstraint(Sketcher.Constraint("Vertical", 52))
sketch1.addConstraint(Sketcher.Constraint("Horizontal", 56))
sketch1.addConstraint(Sketcher.Constraint("Vertical", 60))
sketch1.addConstraint(Sketcher.Constraint("Horizontal", 62))
sketch1.addConstraint(Sketcher.Constraint("Vertical", 64))
sketch1.addConstraint(Sketcher.Constraint("Horizontal", 66))
sketch1.addConstraint(Sketcher.Constraint("Vertical", 68))
sketch1.addConstraint(Sketcher.Constraint("Horizontal", 70))
sketch1.addConstraint(Sketcher.Constraint("Vertical", 72))
sketch1.addConstraint(Sketcher.Constraint("Horizontal", 74))
sketch1.addConstraint(Sketcher.Constraint("Vertical", 78))
sketch1.addConstraint(Sketcher.Constraint("Horizontal", 82))
sketch1.addConstraint(Sketcher.Constraint("Vertical", 84))
sketch1.addConstraint(Sketcher.Constraint("Horizontal", 86))
sketch1.addConstraint(Sketcher.Constraint("Coincident", 88, 3, -1, 1))
sketch1.addConstraint(Sketcher.Constraint("Equal", 3, 5))
sketch1.addConstraint(Sketcher.Constraint("Equal", 7, 9))
sketch1.addConstraint(Sketcher.Constraint("Equal", 11, 13))
sketch1.addConstraint(Sketcher.Constraint("Equal", 9, 15))
sketch1.addConstraint(Sketcher.Constraint("Equal", 15, 17))
sketch1.addConstraint(Sketcher.Constraint("Equal", 5, 19))
sketch1.addConstraint(Sketcher.Constraint("Equal", 19, 21))
sketch1.addConstraint(Sketcher.Constraint("Equal", 21, 25))
sketch1.addConstraint(Sketcher.Constraint("Equal", 25, 27))
sketch1.addConstraint(Sketcher.Constraint("Equal", 17, 29))
sketch1.addConstraint(Sketcher.Constraint("Equal", 29, 31))
sketch1.addConstraint(Sketcher.Constraint("Equal", 13, 33))
sketch1.addConstraint(Sketcher.Constraint("Equal", 33, 35))
sketch1.addConstraint(Sketcher.Constraint("Equal", 31, 37))
sketch1.addConstraint(Sketcher.Constraint("Equal", 37, 39))
sketch1.addConstraint(Sketcher.Constraint("Equal", 27, 41))
sketch1.addConstraint(Sketcher.Constraint("Equal", 41, 43))
sketch1.addConstraint(Sketcher.Constraint("Equal", 43, 47))
sketch1.addConstraint(Sketcher.Constraint("Equal", 47, 49))
sketch1.addConstraint(Sketcher.Constraint("Equal", 39, 51))
sketch1.addConstraint(Sketcher.Constraint("Equal", 51, 53))
sketch1.addConstraint(Sketcher.Constraint("Equal", 35, 55))
sketch1.addConstraint(Sketcher.Constraint("Equal", 55, 57))
sketch1.addConstraint(Sketcher.Constraint("Equal", 53, 59))
sketch1.addConstraint(Sketcher.Constraint("Equal", 59, 61))
sketch1.addConstraint(Sketcher.Constraint("Equal", 49, 63))
sketch1.addConstraint(Sketcher.Constraint("Equal", 63, 65))
sketch1.addConstraint(Sketcher.Constraint("Equal", 65, 69))
sketch1.addConstraint(Sketcher.Constraint("Equal", 69, 71))
sketch1.addConstraint(Sketcher.Constraint("Equal", 61, 73))
sketch1.addConstraint(Sketcher.Constraint("Equal", 73, 75))
sketch1.addConstraint(Sketcher.Constraint("Equal", 57, 77))
sketch1.addConstraint(Sketcher.Constraint("Equal", 77, 79))
sketch1.addConstraint(Sketcher.Constraint("Equal", 75, 81))
sketch1.addConstraint(Sketcher.Constraint("Equal", 81, 83))
sketch1.addConstraint(Sketcher.Constraint("Equal", 71, 85))
sketch1.addConstraint(Sketcher.Constraint("Equal", 85, 87))
sketch1.addConstraint(Sketcher.Constraint("Symmetric", 3, 3, 47, 3, -1, 1))
sketch1.addConstraint(Sketcher.Constraint("Symmetric", 7, 3, 51, 3, -1, 1))
sketch1.addConstraint(Sketcher.Constraint("Symmetric", 11, 3, 55, 3, -1, 1))
sketch1.addConstraint(Sketcher.Constraint("Symmetric", 15, 3, 59, 3, -1, 1))
sketch1.addConstraint(Sketcher.Constraint("Symmetric", 19, 3, 63, 3, -1, 1))
sketch1.addConstraint(Sketcher.Constraint("Symmetric", 25, 3, 69, 3, -1, 1))
sketch1.addConstraint(Sketcher.Constraint("Symmetric", 29, 3, 73, 3, -1, 1))
sketch1.addConstraint(Sketcher.Constraint("Symmetric", 33, 3, 77, 3, -1, 1))
sketch1.addConstraint(Sketcher.Constraint("Symmetric", 37, 3, 81, 3, -1, 1))
sketch1.addConstraint(Sketcher.Constraint("Symmetric", 41, 3, 85, 3, -1, 1))
sketch1.addConstraint(Sketcher.Constraint("Symmetric", 0, 2, 44, 2, -1, 1))
sketch1.addConstraint(Sketcher.Constraint("Symmetric", 22, 2, 66, 2, -1, 1))
sketch1.addConstraint(Sketcher.Constraint("Symmetric", 9, 3, 15, 3, -2))
sketch1.addConstraint(Sketcher.Constraint("Symmetric", 5, 3, 19, 3, -2))
sketch1.addConstraint(Sketcher.Constraint("Symmetric", 43, 3, 69, 3, -2))
sketch1.addConstraint(Sketcher.Constraint("Symmetric", 39, 3, 73, 3, -2))
sketch1.addConstraint(Sketcher.Constraint("Symmetric", 1, 2, 22, 2, -2))
sketch1.addConstraint(Sketcher.Constraint("Symmetric", 54, 2, 57, 2, -2))
sketch1.addConstraint(Sketcher.Constraint("Symmetric", 36, 2, 75, 2, -2))
sketch1.addConstraint(Sketcher.Constraint("Symmetric", 32, 2, 79, 2, -2))
sketch1.addConstraint(Sketcher.Constraint("Perpendicular", 1, 10))
sketch1.addConstraint(Sketcher.Constraint("Perpendicular", 10, 14))
sketch1.addConstraint(Sketcher.Constraint("Perpendicular", 14, 23))
sketch1.addConstraint(Sketcher.Constraint("Perpendicular", 23, 32))
sketch1.addConstraint(Sketcher.Constraint("Perpendicular", 32, 36))
sketch1.addConstraint(Sketcher.Constraint("Perpendicular", 36, 45))
sketch1.addConstraint(Sketcher.Constraint("Perpendicular", 58, 67))
sketch1.addConstraint(Sketcher.Constraint("Equal", 66, 0))
sketch1.addConstraint(Sketcher.Constraint("Equal", 86, 4))
sketch1.addConstraint(Sketcher.Constraint("Equal", 74, 16))
sketch1.addConstraint(Sketcher.Constraint("Equal", 62, 28))
sketch1.addConstraint(Sketcher.Constraint("Equal", 14, 32))
sketch1.addConstraint(Sketcher.Constraint("Radius", 3, Q("0.05 in")))
sketch1.addConstraint(Sketcher.Constraint("Diameter", 88, Q("0.268 in")))
sketch1.addConstraint(Sketcher.Constraint("Radius", 7, Q("0.046875 in")))
sketch1.addConstraint(Sketcher.Constraint("Radius", 11, Q("0.1875 in")))
sketch1.addConstraint(Sketcher.Constraint("DistanceY", -1, 1, 3, 3, Q("0.7 in")))
sketch1.addConstraint(Sketcher.Constraint("DistanceX", -1, 1, 25, 3, Q("0.7 in")))
sketch1.addConstraint(Sketcher.Constraint("DistanceY", -1, 1, 0, 2, Q("0.69 in")))
sketch1.addConstraint(Sketcher.Constraint("DistanceX", 2, 1, 2, 2, 12.192008))
sketch1.addConstraint(Sketcher.Constraint("DistanceX", 30, 2, 30, 1, 0.012131))
sketch1.addConstraint(Sketcher.Constraint("DistanceX", 56, 2, 56, 1, 3.820041))
sketch1.addConstraint(Sketcher.Constraint("Distance", 14, 6.591139))
sketch1.addConstraint(Sketcher.Constraint("DistanceX", 26, 2, 26, 1, 1.653417))
sketch1.setExpression("Constraints[194]", "Params.sketch1_radius")
sketch1.setExpression("Constraints[195]", "Params.sketch1_diameter")
sketch1.setExpression("Constraints[196]", "Params.sketch1_radius2")
sketch1.setExpression("Constraints[197]", "Params.sketch1_radius3")
pad1 = body.newObject("PartDesign::Pad", "Pad")
pad1.Profile = sketch1
pad1.setExpression("Length", "Params.pad1_length")

doc.recompute()
